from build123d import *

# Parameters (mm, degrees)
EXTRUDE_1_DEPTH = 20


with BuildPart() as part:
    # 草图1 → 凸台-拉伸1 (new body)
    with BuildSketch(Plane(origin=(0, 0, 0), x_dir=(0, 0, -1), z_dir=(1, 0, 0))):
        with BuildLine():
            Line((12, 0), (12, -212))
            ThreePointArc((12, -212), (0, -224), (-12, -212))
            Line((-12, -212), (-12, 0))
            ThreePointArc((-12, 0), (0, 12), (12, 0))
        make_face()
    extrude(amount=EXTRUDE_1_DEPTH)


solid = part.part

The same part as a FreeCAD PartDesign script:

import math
import FreeCAD as App
import Part
import Sketcher
Q = App.Units.Quantity

doc = App.newDocument("Part")
body = doc.addObject("PartDesign::Body", "Body")

sketch1 = body.newObject("Sketcher::SketchObject", "Sketch")
sketch1.AttachmentSupport = (doc.getObject("YZ_Plane"), [""])
sketch1.MapMode = "FlatFace"
sketch1.addGeometry(Part.LineSegment(App.Vector(-212, -12, 0), App.Vector(0, -12, 0)), False)
sketch1.addGeometry(Part.ArcOfCircle(Part.Circle(App.Vector(0, 0, 0), App.Vector(0, 0, 1), 12), math.radians(-90), math.radians(90)), False)
sketch1.addGeometry(Part.LineSegment(App.Vector(0, 12, 0), App.Vector(-212, 12, 0)), False)
sketch1.addGeometry(Part.ArcOfCircle(Part.Circle(App.Vector(-212, 0, 0), App.Vector(0, 0, 1), 12), math.radians(90), math.radians(270)), False)
sketch1.addConstraint(Sketcher.Constraint("Tangent", 0, 2, 1, 1))
sketch1.addConstraint(Sketcher.Constraint("Tangent", 1, 2, 2, 1))
sketch1.addConstraint(Sketcher.Constraint("Tangent", 2, 2, 3, 1))
sketch1.addConstraint(Sketcher.Constraint("Tangent", 3, 2, 0, 1))
sketch1.addConstraint(Sketcher.Constraint("Horizontal", 0))
sketch1.addConstraint(Sketcher.Constraint("Horizontal", 2))
sketch1.addConstraint(Sketcher.Constraint("Coincident", 1, 3, -1, 1))
sketch1.addConstraint(Sketcher.Constraint("Radius", 1, Q("12 mm")))
sketch1.addConstraint(Sketcher.Constraint("DistanceX", 0, 1, 0, 2, Q("212 mm")))
pad1 = body.newObject("PartDesign::Pad", "Pad")
pad1.Profile = sketch1
pad1.Length = 20

doc.recompute()
